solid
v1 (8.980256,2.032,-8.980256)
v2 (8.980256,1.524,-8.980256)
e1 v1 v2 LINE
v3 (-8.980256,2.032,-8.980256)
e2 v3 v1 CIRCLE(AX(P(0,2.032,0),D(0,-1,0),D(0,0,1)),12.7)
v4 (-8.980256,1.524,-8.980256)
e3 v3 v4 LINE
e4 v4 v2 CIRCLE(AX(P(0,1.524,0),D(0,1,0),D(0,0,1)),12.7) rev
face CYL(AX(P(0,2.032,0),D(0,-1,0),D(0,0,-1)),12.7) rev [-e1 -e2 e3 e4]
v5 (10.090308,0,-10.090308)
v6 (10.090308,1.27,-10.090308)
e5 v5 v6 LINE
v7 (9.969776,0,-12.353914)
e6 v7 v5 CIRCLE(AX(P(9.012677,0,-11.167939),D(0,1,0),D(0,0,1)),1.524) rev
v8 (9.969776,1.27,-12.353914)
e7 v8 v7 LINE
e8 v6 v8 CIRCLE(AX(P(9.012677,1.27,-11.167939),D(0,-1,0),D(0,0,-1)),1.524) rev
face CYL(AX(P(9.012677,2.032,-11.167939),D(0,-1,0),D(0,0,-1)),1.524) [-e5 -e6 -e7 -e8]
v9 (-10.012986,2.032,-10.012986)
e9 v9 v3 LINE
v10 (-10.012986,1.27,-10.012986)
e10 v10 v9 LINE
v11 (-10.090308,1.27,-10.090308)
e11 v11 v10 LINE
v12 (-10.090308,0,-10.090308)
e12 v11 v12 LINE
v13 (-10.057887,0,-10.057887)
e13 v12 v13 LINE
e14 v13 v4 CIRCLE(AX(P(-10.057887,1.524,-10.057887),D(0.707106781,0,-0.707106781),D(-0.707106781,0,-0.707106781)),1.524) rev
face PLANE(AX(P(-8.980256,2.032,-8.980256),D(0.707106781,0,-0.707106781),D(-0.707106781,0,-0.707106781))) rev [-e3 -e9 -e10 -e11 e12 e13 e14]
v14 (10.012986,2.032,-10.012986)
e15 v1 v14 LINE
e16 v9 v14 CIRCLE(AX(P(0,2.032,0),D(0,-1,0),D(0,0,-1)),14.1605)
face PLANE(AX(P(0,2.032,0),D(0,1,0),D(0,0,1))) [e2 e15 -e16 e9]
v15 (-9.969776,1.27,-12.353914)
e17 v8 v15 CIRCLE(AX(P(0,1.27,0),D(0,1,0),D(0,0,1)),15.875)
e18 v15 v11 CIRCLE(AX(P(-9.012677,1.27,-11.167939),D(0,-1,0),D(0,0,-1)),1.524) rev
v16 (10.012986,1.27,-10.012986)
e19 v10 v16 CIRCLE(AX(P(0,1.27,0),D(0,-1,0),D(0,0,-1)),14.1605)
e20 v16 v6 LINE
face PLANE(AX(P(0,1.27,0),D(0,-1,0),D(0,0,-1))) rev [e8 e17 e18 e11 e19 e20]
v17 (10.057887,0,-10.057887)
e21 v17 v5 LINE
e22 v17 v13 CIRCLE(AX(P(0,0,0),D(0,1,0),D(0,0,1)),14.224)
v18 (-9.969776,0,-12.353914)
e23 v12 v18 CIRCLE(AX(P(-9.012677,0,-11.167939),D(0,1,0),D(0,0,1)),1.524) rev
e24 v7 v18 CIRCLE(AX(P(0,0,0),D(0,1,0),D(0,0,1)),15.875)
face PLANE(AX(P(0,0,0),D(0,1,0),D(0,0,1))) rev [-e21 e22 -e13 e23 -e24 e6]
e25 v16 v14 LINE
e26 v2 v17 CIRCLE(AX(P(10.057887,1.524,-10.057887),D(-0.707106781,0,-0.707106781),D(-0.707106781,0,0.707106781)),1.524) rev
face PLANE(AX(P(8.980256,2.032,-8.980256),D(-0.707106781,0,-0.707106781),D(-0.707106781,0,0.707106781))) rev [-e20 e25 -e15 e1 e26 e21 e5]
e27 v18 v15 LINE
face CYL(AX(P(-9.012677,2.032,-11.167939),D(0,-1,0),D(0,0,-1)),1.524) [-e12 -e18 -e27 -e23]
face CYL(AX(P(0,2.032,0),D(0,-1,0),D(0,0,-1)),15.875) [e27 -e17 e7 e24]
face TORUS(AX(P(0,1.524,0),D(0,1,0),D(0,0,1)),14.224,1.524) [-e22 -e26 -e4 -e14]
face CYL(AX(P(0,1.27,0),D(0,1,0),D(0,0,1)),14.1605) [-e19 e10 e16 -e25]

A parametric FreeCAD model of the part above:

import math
import FreeCAD as App
import Part
import Sketcher
Q = App.Units.Quantity


def edges_at(feature, points):
    """Names of the edges that pass closest to the given points."""
    edges = feature.Shape.Edges
    near = lambda p: min(range(len(edges)), key=lambda i: edges[i].distToShape(Part.Vertex(*p))[0])
    return sorted({f"Edge{near(p) + 1}" for p in points})

doc = App.newDocument("Part")
body = doc.addObject("PartDesign::Body", "Body")

# Sketch on XZ plane
sketch1 = doc.addObject("Sketcher::SketchObject", "Sketch")
body.addObject(sketch1)
sketch1.AttachmentSupport = (doc.XZ_Plane, [""])
sketch1.MapMode = "FlatFace"
sketch1.addGeometry([
    Part.LineSegment(App.Vector(-11.2, -11.2, 0), App.Vector(-9, -9, 0)),
    Part.ArcOfCircle(Part.Circle(App.Vector(0, 0, 0), App.Vector(0, 0, 1), 12.7), math.radians(-135), math.radians(-45)),
    Part.LineSegment(App.Vector(9, -9, 0), App.Vector(11.2, -11.2, 0)),
    Part.ArcOfCircle(Part.Circle(App.Vector(0, 0, 0), App.Vector(0, 0, 1), 15.9), math.radians(-135), math.radians(-45)),
], False)
sketch1.addConstraint([
    Sketcher.Constraint("Coincident", 0, 2, 1, 1),
    Sketcher.Constraint("Coincident", 1, 2, 2, 1),
    Sketcher.Constraint("Coincident", 2, 2, 3, 2),
    Sketcher.Constraint("Coincident", 3, 1, 0, 1),
    Sketcher.Constraint("Coincident", 1, 3, -1, 1),
    Sketcher.Constraint("Coincident", 3, 3, -1, 1),
    Sketcher.Constraint("Perpendicular", 0, 2),
    Sketcher.Constraint("Horizontal", 0, 2, 1, 2),
    Sketcher.Constraint("Horizontal", 2, 2, 3, 1),
    Sketcher.Constraint("Radius", 1, Q("0.5 in")),
    Sketcher.Constraint("Radius", 3, Q("0.625 in")),
    Sketcher.Constraint("DistanceX", -1, 1, 2, 2, 11.22532),
])
pad1 = doc.addObject("PartDesign::Pad", "Pad")
body.addObject(pad1)
pad1.Profile = sketch1
pad1.Length = Q("0.08 in")
pad1.Reversed = True

# Sketch on XZ plane
sketch2 = doc.addObject("Sketcher::SketchObject", "Sketch001")
body.addObject(sketch2)
sketch2.AttachmentSupport = (doc.XZ_Plane, [""])
sketch2.MapMode = "FlatFace"
sketch2.AttachmentOffset = App.Placement(App.Vector(0, 0, -0.05 * 25.4), App.Rotation())
sketch2.addGeometry([
    Part.LineSegment(App.Vector(10, -10, 0), App.Vector(11.2, -11.2, 0)),
    Part.ArcOfCircle(Part.Circle(App.Vector(0, 0, 0), App.Vector(0, 0, 1), 15.9), math.radians(-135), math.radians(-45)),
    Part.LineSegment(App.Vector(-11.2, -11.2, 0), App.Vector(-10, -10, 0)),
    Part.ArcOfCircle(Part.Circle(App.Vector(0, 0, 0), App.Vector(0, 0, 1), 14.2), math.radians(-135), math.radians(-45)),
], False)
sketch2.addConstraint([
    Sketcher.Constraint("Coincident", 0, 2, 1, 2),
    Sketcher.Constraint("Coincident", 1, 1, 2, 1),
    Sketcher.Constraint("Coincident", 2, 2, 3, 1),
    Sketcher.Constraint("Coincident", 3, 2, 0, 1),
    Sketcher.Constraint("Coincident", 1, 3, -1, 1),
    Sketcher.Constraint("Coincident", 3, 3, -1, 1),
    Sketcher.Constraint("Perpendicular", 0, 2),
    Sketcher.Constraint("Horizontal", 0, 2, 1, 1),
    Sketcher.Constraint("Horizontal", 2, 2, 3, 2),
    Sketcher.Constraint("Radius", 1, Q("0.625 in")),
    Sketcher.Constraint("Radius", 3, Q("0.5575 in")),
    Sketcher.Constraint("DistanceX", -1, 1, 0, 2, 11.22532),
])
pocket1 = doc.addObject("PartDesign::Pocket", "Pocket")
body.addObject(pocket1)
pocket1.Profile = sketch2
pocket1.Length = Q("0.03 in")
doc.recompute()

fillet = doc.addObject("PartDesign::Fillet", "Fillet")
body.addObject(fillet)
fillet.Base = (pocket1, edges_at(pocket1, [(0, 0, -12.7)]))
fillet.Radius = Q("0.06 in")
doc.recompute()

fillet2 = doc.addObject("PartDesign::Fillet", "Fillet001")
body.addObject(fillet2)
fillet2.Base = (fillet, edges_at(fillet, [(-11.225, 0.635, -11.225), (11.225, 0.635, -11.225)]))
fillet2.Radius = Q("0.06 in")

doc.recompute()
